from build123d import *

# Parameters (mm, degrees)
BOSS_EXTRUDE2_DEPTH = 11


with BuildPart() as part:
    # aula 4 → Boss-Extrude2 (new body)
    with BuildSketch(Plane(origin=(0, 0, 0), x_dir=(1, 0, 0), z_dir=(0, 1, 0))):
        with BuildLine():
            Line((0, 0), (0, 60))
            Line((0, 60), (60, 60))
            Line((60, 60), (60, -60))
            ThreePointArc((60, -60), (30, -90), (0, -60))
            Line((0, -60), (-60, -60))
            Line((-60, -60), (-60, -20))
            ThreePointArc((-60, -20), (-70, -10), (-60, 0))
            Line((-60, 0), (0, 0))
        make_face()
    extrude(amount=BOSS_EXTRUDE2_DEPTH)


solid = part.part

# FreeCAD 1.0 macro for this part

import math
import FreeCAD as App
import Part
import Sketcher

doc = App.newDocument("Part")
body = doc.addObject("PartDesign::Body", "Body")

# Sketch on XZ plane
sketch1 = body.newObject("Sketcher::SketchObject", "Sketch")
sketch1.AttachmentSupport = (doc.getObject("XZ_Plane"), [""])
sketch1.MapMode = "FlatFace"
sketch1.addGeometry(Part.LineSegment(App.Vector(0, -60, 0), App.Vector(0, 0, 0)), False)
sketch1.addGeometry(Part.LineSegment(App.Vector(0, 0, 0), App.Vector(-60, 0, 0)), False)
sketch1.addGeometry(Part.ArcOfCircle(Part.Circle(App.Vector(-60, 10, 0), App.Vector(0, 0, 1), 10), math.radians(90), math.radians(270)), False)
sketch1.addGeometry(Part.LineSegment(App.Vector(-60, 20, 0), App.Vector(-60, 60, 0)), False)
sketch1.addGeometry(Part.LineSegment(App.Vector(-60, 60, 0), App.Vector(0, 60, 0)), False)
sketch1.addGeometry(Part.ArcOfCircle(Part.Circle(App.Vector(30, 60, 0), App.Vector(0, 0, 1), 30), math.radians(0), math.radians(180)), False)
sketch1.addGeometry(Part.LineSegment(App.Vector(60, 60, 0), App.Vector(60, -60, 0)), False)
sketch1.addGeometry(Part.LineSegment(App.Vector(60, -60, 0), App.Vector(0, -60, 0)), False)
sketch1.addConstraint(Sketcher.Constraint("Coincident", 0, 2, 1, 1))
sketch1.addConstraint(Sketcher.Constraint("Tangent", 1, 2, 2, 2))
sketch1.addConstraint(Sketcher.Constraint("Coincident", 2, 1, 3, 1))
sketch1.addConstraint(Sketcher.Constraint("Coincident", 3, 2, 4, 1))
sketch1.addConstraint(Sketcher.Constraint("Coincident", 4, 2, 5, 2))
sketch1.addConstraint(Sketcher.Constraint("Tangent", 5, 1, 6, 1))
sketch1.addConstraint(Sketcher.Constraint("Coincident", 6, 2, 7, 1))
sketch1.addConstraint(Sketcher.Constraint("Coincident", 7, 2, 0, 1))
sketch1.addConstraint(Sketcher.Constraint("Vertical", 0))
sketch1.addConstraint(Sketcher.Constraint("Horizontal", 1))
sketch1.addConstraint(Sketcher.Constraint("Vertical", 3))
sketch1.addConstraint(Sketcher.Constraint("Horizontal", 4))
sketch1.addConstraint(Sketcher.Constraint("Vertical", 6))
sketch1.addConstraint(Sketcher.Constraint("Horizontal", 7))
sketch1.addConstraint(Sketcher.Constraint("Coincident", 0, 2, -1, 1))
sketch1.addConstraint(Sketcher.Constraint("Symmetric", 3, 2, 6, 2, -1, 1))
sketch1.addConstraint(Sketcher.Constraint("PointOnObject", 4, 2, -2))
sketch1.addConstraint(Sketcher.Constraint("Horizontal", 5, 3, 3, 2))
sketch1.addConstraint(Sketcher.Constraint("Vertical", 1, 2, 2, 1))
sketch1.addConstraint(Sketcher.Constraint("Equal", 7, 0))
sketch1.addConstraint(Sketcher.Constraint("Radius", 2, 10.0))
sketch1.addConstraint(Sketcher.Constraint("Radius", 5, 30.0))
pad1 = body.newObject("PartDesign::Pad", "Pad")
pad1.Profile = sketch1
pad1.Length = 11
pad1.Reversed = True

doc.recompute()
